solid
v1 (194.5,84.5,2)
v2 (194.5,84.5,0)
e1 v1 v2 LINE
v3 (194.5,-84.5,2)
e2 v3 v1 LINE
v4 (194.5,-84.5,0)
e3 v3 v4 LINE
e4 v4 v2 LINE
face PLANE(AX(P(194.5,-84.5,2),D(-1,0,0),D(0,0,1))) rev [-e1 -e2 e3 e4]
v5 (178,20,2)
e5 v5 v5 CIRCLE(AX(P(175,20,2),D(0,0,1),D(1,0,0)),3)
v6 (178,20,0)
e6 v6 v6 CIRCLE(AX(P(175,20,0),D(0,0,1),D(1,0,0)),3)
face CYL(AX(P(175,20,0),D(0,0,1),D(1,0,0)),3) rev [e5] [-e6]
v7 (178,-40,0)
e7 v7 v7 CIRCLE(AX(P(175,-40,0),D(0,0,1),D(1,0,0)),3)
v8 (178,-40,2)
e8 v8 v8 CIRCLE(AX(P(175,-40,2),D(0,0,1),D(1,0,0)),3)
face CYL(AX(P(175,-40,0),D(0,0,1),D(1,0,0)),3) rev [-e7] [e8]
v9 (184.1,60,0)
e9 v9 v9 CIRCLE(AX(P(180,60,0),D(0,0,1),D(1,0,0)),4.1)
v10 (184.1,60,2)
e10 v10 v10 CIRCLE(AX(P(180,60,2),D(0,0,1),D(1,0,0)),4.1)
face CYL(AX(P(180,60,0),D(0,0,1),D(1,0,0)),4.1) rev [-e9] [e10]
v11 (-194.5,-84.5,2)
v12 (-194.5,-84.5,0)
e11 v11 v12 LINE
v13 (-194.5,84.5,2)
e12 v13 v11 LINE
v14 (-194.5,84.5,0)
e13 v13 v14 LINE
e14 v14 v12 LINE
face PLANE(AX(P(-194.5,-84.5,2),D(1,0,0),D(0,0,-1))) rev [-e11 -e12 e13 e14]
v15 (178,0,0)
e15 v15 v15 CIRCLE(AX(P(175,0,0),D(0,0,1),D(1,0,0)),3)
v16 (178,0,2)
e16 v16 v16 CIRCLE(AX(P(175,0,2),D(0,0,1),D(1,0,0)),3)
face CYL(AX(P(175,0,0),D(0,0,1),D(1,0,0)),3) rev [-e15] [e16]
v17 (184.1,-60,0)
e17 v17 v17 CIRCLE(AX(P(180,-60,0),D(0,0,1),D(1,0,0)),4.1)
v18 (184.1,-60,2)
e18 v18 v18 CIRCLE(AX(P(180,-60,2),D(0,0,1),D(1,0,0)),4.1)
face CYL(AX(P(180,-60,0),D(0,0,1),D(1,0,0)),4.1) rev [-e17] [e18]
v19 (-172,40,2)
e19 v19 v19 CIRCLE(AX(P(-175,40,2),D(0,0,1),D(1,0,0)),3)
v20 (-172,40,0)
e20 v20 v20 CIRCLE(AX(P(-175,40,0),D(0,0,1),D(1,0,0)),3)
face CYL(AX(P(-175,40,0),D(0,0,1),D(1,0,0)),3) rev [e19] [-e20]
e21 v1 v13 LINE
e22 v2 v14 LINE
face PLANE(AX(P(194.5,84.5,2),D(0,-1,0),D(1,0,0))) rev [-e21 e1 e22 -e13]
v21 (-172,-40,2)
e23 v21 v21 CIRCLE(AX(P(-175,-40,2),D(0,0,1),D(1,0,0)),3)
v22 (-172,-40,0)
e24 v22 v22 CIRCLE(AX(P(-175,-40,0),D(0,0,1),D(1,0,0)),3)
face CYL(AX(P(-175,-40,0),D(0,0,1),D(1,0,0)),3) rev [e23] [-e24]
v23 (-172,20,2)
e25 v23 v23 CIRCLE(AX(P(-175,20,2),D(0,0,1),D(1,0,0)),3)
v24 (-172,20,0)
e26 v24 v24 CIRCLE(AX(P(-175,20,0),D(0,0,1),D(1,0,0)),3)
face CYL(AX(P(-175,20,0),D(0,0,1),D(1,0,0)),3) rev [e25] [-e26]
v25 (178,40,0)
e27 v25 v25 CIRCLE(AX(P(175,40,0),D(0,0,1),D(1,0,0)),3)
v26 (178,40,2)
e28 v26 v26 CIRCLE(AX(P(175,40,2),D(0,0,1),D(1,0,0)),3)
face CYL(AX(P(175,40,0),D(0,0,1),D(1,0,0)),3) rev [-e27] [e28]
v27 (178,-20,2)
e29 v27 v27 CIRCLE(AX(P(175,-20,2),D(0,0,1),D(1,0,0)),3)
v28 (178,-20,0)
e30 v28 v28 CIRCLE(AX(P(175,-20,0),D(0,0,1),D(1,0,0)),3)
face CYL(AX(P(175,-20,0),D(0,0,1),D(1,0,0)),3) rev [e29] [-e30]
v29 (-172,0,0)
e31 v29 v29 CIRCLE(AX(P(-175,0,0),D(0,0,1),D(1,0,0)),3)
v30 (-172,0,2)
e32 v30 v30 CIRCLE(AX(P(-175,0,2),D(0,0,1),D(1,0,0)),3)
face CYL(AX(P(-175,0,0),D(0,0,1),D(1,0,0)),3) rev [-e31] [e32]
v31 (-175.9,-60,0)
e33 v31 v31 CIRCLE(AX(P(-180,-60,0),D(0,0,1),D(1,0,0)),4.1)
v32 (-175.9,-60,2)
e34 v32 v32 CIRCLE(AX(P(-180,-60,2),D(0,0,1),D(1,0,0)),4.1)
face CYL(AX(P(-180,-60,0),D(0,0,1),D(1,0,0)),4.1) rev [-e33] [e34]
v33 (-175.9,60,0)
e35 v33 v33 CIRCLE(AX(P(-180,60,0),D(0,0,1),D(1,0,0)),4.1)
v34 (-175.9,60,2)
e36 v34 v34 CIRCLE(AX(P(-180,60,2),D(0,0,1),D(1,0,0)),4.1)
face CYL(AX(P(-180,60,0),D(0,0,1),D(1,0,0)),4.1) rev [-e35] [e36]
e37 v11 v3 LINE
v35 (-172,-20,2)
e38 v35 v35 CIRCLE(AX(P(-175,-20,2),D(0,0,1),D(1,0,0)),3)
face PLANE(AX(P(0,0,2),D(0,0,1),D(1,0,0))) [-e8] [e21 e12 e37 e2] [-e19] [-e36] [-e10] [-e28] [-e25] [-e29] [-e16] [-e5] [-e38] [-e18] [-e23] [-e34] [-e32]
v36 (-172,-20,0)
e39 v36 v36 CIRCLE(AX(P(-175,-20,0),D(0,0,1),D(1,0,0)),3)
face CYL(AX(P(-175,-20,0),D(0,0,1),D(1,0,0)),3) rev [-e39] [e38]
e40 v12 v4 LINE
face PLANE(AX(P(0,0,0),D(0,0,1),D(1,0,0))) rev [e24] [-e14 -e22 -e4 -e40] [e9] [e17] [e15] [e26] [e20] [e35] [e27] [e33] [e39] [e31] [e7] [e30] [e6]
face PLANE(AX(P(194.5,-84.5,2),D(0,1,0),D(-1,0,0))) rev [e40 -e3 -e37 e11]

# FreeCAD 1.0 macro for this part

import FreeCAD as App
import Part
import Sketcher
Q = App.Units.Quantity


def add_polygon(sketch, points):
    """Adds a closed chain of lines whose ends are joined by coincident constraints."""
    first, n = sketch.GeometryCount, len(points)
    for a, b in zip(points, points[1:] + points[:1]):
        sketch.addGeometry(Part.LineSegment(App.Vector(*a, 0), App.Vector(*b, 0)), False)
    for i in range(n):
        sketch.addConstraint(Sketcher.Constraint("Coincident", first + i, 2, first + (i + 1) % n, 1))

doc = App.newDocument("Part")
body = doc.addObject("PartDesign::Body", "Body")

# Sketch on XY plane
sketch1 = body.newObject("Sketcher::SketchObject", "Sketch")
sketch1.AttachmentSupport = (doc.getObject("XY_Plane"), [""])
sketch1.MapMode = "FlatFace"
add_polygon(sketch1, [(-194, 84), (-194, -84), (194, -84), (194, 84)])  # lines 0-3
sketch1.addConstraint(Sketcher.Constraint("Vertical", 0))
sketch1.addConstraint(Sketcher.Constraint("Horizontal", 1))
sketch1.addConstraint(Sketcher.Constraint("Vertical", 2))
sketch1.addConstraint(Sketcher.Constraint("Horizontal", 3))
sketch1.addConstraint(Sketcher.Constraint("Symmetric", 0, 2, 2, 2, -1, 1))
sketch1.addConstraint(Sketcher.Constraint("DistanceX", 1, 1, 1, 2, Q("389 mm")))
sketch1.addConstraint(Sketcher.Constraint("DistanceY", 0, 2, 0, 1, Q("169 mm")))
pad1 = body.newObject("PartDesign::Pad", "Pad")
pad1.Profile = sketch1
pad1.Length = 2

# Sketch on XY plane
sketch2 = body.newObject("Sketcher::SketchObject", "Sketch001")
sketch2.AttachmentSupport = (doc.getObject("XY_Plane"), [""])
sketch2.MapMode = "FlatFace"
sketch2.AttachmentOffset = App.Placement(App.Vector(0, 0, 2), App.Rotation())
sketch2.addGeometry(Part.Circle(App.Vector(-175, 0, 0), App.Vector(0, 0, 1), 3), False)
sketch2.addGeometry(Part.Circle(App.Vector(175, 0, 0), App.Vector(0, 0, 1), 3), False)
sketch2.addGeometry(Part.Circle(App.Vector(-175, 20, 0), App.Vector(0, 0, 1), 3), False)
sketch2.addGeometry(Part.Circle(App.Vector(175, 20, 0), App.Vector(0, 0, 1), 3), False)
sketch2.addGeometry(Part.Circle(App.Vector(-175, 40, 0), App.Vector(0, 0, 1), 3), False)
sketch2.addGeometry(Part.Circle(App.Vector(175, 40, 0), App.Vector(0, 0, 1), 3), False)
sketch2.addGeometry(Part.Circle(App.Vector(-180, 60, 0), App.Vector(0, 0, 1), 4.1), False)
sketch2.addGeometry(Part.Circle(App.Vector(180, 60, 0), App.Vector(0, 0, 1), 4.1), False)
sketch2.addGeometry(Part.Circle(App.Vector(-175, -20, 0), App.Vector(0, 0, 1), 3), False)
sketch2.addGeometry(Part.Circle(App.Vector(175, -20, 0), App.Vector(0, 0, 1), 3), False)
sketch2.addGeometry(Part.Circle(App.Vector(-175, -40, 0), App.Vector(0, 0, 1), 3), False)
sketch2.addGeometry(Part.Circle(App.Vector(175, -40, 0), App.Vector(0, 0, 1), 3), False)
sketch2.addGeometry(Part.Circle(App.Vector(-180, -60, 0), App.Vector(0, 0, 1), 4.1), False)
sketch2.addGeometry(Part.Circle(App.Vector(180, -60, 0), App.Vector(0, 0, 1), 4.1), False)
sketch2.addConstraint(Sketcher.Constraint("Equal", 0, 1))
sketch2.addConstraint(Sketcher.Constraint("Equal", 1, 2))
sketch2.addConstraint(Sketcher.Constraint("Equal", 2, 3))
sketch2.addConstraint(Sketcher.Constraint("Equal", 3, 4))
sketch2.addConstraint(Sketcher.Constraint("Equal", 4, 5))
sketch2.addConstraint(Sketcher.Constraint("Equal", 6, 7))
sketch2.addConstraint(Sketcher.Constraint("Equal", 5, 8))
sketch2.addConstraint(Sketcher.Constraint("Equal", 8, 9))
sketch2.addConstraint(Sketcher.Constraint("Equal", 9, 10))
sketch2.addConstraint(Sketcher.Constraint("Equal", 10, 11))
sketch2.addConstraint(Sketcher.Constraint("Equal", 7, 12))
sketch2.addConstraint(Sketcher.Constraint("Equal", 12, 13))
sketch2.addConstraint(Sketcher.Constraint("Symmetric", 0, 3, 1, 3, -1, 1))
sketch2.addConstraint(Sketcher.Constraint("Symmetric", 3, 3, 8, 3, -1, 1))
sketch2.addConstraint(Sketcher.Constraint("Symmetric", 2, 3, 9, 3, -1, 1))
sketch2.addConstraint(Sketcher.Constraint("Symmetric", 5, 3, 10, 3, -1, 1))
sketch2.addConstraint(Sketcher.Constraint("Symmetric", 4, 3, 11, 3, -1, 1))
sketch2.addConstraint(Sketcher.Constraint("Symmetric", 7, 3, 12, 3, -1, 1))
sketch2.addConstraint(Sketcher.Constraint("Symmetric", 6, 3, 13, 3, -1, 1))
sketch2.addConstraint(Sketcher.Constraint("Symmetric", 2, 3, 3, 3, -2))
sketch2.addConstraint(Sketcher.Constraint("Symmetric", 4, 3, 5, 3, -2))
sketch2.addConstraint(Sketcher.Constraint("Symmetric", 6, 3, 7, 3, -2))
sketch2.addConstraint(Sketcher.Constraint("PointOnObject", 0, 3, -1))
sketch2.addConstraint(Sketcher.Constraint("Vertical", 0, 3, 2, 3))
sketch2.addConstraint(Sketcher.Constraint("Vertical", 2, 3, 4, 3))
sketch2.addConstraint(Sketcher.Constraint("Diameter", 0, Q("6 mm")))
sketch2.addConstraint(Sketcher.Constraint("Diameter", 6, Q("8.2 mm")))
sketch2.addConstraint(Sketcher.Constraint("DistanceX", 0, 3, -1, 1, Q("175 mm")))
sketch2.addConstraint(Sketcher.Constraint("DistanceY", -1, 1, 2, 3, Q("20 mm")))
sketch2.addConstraint(Sketcher.Constraint("DistanceY", -1, 1, 4, 3, Q("40 mm")))
sketch2.addConstraint(Sketcher.Constraint("DistanceX", 6, 3, -1, 1, Q("180 mm")))
sketch2.addConstraint(Sketcher.Constraint("DistanceY", -1, 1, 6, 3, Q("60 mm")))
pocket1 = body.newObject("PartDesign::Pocket", "Pocket")
pocket1.Profile = sketch2
pocket1.Type = "ThroughAll"

doc.recompute()
